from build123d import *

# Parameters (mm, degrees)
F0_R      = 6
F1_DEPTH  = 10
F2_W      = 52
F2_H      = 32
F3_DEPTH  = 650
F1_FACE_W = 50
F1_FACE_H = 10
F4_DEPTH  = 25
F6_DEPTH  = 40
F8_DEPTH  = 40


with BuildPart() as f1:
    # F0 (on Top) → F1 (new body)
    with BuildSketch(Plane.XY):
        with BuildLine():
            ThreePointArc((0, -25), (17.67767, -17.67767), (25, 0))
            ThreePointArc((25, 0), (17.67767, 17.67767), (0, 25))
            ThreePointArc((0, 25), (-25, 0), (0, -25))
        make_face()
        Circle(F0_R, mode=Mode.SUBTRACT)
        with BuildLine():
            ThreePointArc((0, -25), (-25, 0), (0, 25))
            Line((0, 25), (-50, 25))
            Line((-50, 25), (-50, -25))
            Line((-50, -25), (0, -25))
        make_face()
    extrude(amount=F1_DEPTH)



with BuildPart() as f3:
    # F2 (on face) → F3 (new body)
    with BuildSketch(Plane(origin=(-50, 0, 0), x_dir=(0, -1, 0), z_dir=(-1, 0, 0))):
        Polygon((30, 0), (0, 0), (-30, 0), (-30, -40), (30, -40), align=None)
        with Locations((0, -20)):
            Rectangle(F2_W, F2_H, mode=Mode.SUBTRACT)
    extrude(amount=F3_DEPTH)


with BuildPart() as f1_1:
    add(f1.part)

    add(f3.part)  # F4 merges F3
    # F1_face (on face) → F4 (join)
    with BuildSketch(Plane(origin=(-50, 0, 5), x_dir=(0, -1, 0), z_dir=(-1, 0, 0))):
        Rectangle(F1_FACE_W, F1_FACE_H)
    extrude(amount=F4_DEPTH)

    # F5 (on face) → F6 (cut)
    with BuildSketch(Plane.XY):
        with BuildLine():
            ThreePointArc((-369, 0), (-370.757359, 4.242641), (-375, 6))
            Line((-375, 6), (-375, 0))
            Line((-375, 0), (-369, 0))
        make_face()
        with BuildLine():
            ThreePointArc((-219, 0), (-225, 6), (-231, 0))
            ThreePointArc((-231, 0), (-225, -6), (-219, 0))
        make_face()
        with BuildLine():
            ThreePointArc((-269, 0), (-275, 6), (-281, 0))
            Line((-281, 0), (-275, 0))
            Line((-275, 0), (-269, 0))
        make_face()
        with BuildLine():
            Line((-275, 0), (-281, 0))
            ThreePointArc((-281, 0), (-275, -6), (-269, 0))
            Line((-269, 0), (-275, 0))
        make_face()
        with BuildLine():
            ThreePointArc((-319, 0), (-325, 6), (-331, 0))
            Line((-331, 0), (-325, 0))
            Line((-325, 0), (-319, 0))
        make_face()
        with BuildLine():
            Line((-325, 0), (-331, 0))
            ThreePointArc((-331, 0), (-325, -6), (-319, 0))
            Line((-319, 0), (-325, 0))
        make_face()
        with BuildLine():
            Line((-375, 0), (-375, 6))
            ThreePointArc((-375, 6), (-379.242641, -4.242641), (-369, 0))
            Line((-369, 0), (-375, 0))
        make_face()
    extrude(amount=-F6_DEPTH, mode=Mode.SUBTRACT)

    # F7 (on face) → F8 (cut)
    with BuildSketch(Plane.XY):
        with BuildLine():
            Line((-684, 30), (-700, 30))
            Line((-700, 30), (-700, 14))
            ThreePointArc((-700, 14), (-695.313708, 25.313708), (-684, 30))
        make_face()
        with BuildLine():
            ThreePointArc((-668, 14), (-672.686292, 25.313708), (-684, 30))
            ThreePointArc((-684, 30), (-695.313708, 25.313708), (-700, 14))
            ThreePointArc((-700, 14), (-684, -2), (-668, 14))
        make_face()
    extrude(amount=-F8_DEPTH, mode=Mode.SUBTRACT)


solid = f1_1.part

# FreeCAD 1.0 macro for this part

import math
import FreeCAD as App
import Part
import Sketcher

V = App.Vector
Q = App.Units.Quantity


def add_polygon(sketch, points):
    """Adds a closed chain of lines whose ends are joined by coincident constraints."""
    first, n = sketch.GeometryCount, len(points)
    for a, b in zip(points, points[1:] + points[:1]):
        sketch.addGeometry(Part.LineSegment(App.Vector(*a, 0), App.Vector(*b, 0)), False)
    for i in range(n):
        sketch.addConstraint(Sketcher.Constraint("Coincident", first + i, 2, first + (i + 1) % n, 1))

doc = App.newDocument("Part")
body = doc.addObject("PartDesign::Body", "Body")

# Sketch on XY plane
sketch1 = doc.addObject("Sketcher::SketchObject", "Sketch")
body.addObject(sketch1)
sketch1.AttachmentSupport = (doc.XY_Plane, [""])
sketch1.MapMode = "FlatFace"
sketch1.addGeometry([
    Part.ArcOfCircle(Part.Circle(V(0, 0, 0), V(0, 0, 1), 25), math.radians(-90), math.radians(0)),  # 0
    Part.ArcOfCircle(Part.Circle(V(0, 0, 0), V(0, 0, 1), 25), math.radians(0), math.radians(90)),  # 1
    Part.LineSegment(V(0, 25, 0), V(-50, 25, 0)),  # 2
    Part.LineSegment(V(-50, 25, 0), V(-50, -25, 0)),  # 3
    Part.LineSegment(V(-50, -25, 0), V(0, -25, 0)),  # 4
    Part.Circle(V(0, 0, 0), V(0, 0, 1), 6),  # 5
], False)
sketch1.addConstraint([
    Sketcher.Constraint("Tangent", 0, 2, 1, 1),
    Sketcher.Constraint("Tangent", 1, 2, 2, 1),
    Sketcher.Constraint("Coincident", 2, 2, 3, 1),
    Sketcher.Constraint("Coincident", 3, 2, 4, 1),
    Sketcher.Constraint("Tangent", 4, 2, 0, 1),
    Sketcher.Constraint("Horizontal", 2),
    Sketcher.Constraint("Vertical", 3),
    Sketcher.Constraint("Horizontal", 4),
    Sketcher.Constraint("Coincident", 0, 3, -1, 1),
    Sketcher.Constraint("Coincident", 5, 3, -1, 1),
    Sketcher.Constraint("Equal", 0, 1),
    Sketcher.Constraint("PointOnObject", 0, 2, -1),
    Sketcher.Constraint("Equal", 4, 3),
    Sketcher.Constraint("Diameter", 5, Q("12 mm")),
    Sketcher.Constraint("Radius", 0, Q("24.999998 mm")),
])
pad1 = doc.addObject("PartDesign::Pad", "Pad")
body.addObject(pad1)
pad1.Profile = sketch1
pad1.Length = 10
body2 = doc.addObject("PartDesign::Body", "Body001")

# Sketch on YZ plane
sketch2 = doc.addObject("Sketcher::SketchObject", "Sketch001")
body2.addObject(sketch2)
sketch2.AttachmentSupport = (doc.getObject("YZ_Plane001"), [""])
sketch2.MapMode = "FlatFace"
sketch2.AttachmentOffset = App.Placement(V(0, 0, -50), App.Rotation())
add_polygon(sketch2, [(-30, 0), (30, 0), (30, -40), (-30, -40)])  # lines 0-3
add_polygon(sketch2, [(-26, -36), (26, -36), (26, -4), (-26, -4)])  # lines 4-7
sketch2.addConstraint([
    Sketcher.Constraint("Horizontal", 0),
    Sketcher.Constraint("Vertical", 1),
    Sketcher.Constraint("Horizontal", 2),
    Sketcher.Constraint("Vertical", 3),
    Sketcher.Constraint("Horizontal", 4),
    Sketcher.Constraint("Vertical", 5),
    Sketcher.Constraint("Horizontal", 6),
    Sketcher.Constraint("Vertical", 7),
    Sketcher.Constraint("Symmetric", 0, 2, 3, 2, -1, 1),
    Sketcher.Constraint("DistanceX", 0, 1, 0, 2, Q("60 mm")),
    Sketcher.Constraint("DistanceX", 4, 1, 4, 2, Q("52 mm")),
    Sketcher.Constraint("DistanceY", 1, 2, 1, 1, Q("40 mm")),
    Sketcher.Constraint("DistanceY", 5, 1, 5, 2, Q("32 mm")),
    Sketcher.Constraint("DistanceX", -1, 1, 4, 2, Q("26 mm")),
    Sketcher.Constraint("DistanceY", 4, 2, -1, 1, Q("36 mm")),
])
pad2 = doc.addObject("PartDesign::Pad", "Pad001")
body2.addObject(pad2)
pad2.Profile = sketch2
pad2.Length = 650
pad2.Reversed = True
body.AllowCompound = True
doc.recompute()

boolean = doc.addObject("PartDesign::Boolean", "Boolean")
body.addObject(boolean)
boolean.Type = "Fuse"
boolean.addObjects([body2])

# Sketch on YZ plane
sketch3 = doc.addObject("Sketcher::SketchObject", "Sketch002")
body.addObject(sketch3)
sketch3.AttachmentSupport = (doc.YZ_Plane, [""])
sketch3.MapMode = "FlatFace"
sketch3.AttachmentOffset = App.Placement(V(0, 0, -50), App.Rotation())
add_polygon(sketch3, [(25, 10), (25, 0), (-25, 0), (-25, 10)])  # lines 0-3
sketch3.addConstraint([
    Sketcher.Constraint("Vertical", 0),
    Sketcher.Constraint("Horizontal", 1),
    Sketcher.Constraint("Vertical", 2),
    Sketcher.Constraint("Horizontal", 3),
    Sketcher.Constraint("Symmetric", 0, 2, 1, 2, -1, 1),
    Sketcher.Constraint("DistanceX", 1, 2, 1, 1, Q("50 mm")),
    Sketcher.Constraint("DistanceY", 0, 2, 0, 1, Q("10 mm")),
])
pad3 = doc.addObject("PartDesign::Pad", "Pad002")
body.addObject(pad3)
pad3.Profile = sketch3
pad3.Length = 25
pad3.Reversed = True

# Sketch on XY plane
sketch4 = doc.addObject("Sketcher::SketchObject", "Sketch003")
body.addObject(sketch4)
sketch4.AttachmentSupport = (doc.XY_Plane, [""])
sketch4.MapMode = "FlatFace"
sketch4.addGeometry([
    Part.ArcOfCircle(Part.Circle(V(-375, 0, 0), V(0, 0, 1), 6), math.radians(0), math.radians(90)),  # 0
    Part.ArcOfCircle(Part.Circle(V(-375, 0, 0), V(0, 0, 1), 6), math.radians(90), math.radians(360)),  # 1
    Part.Circle(V(-225, 0, 0), V(0, 0, 1), 6),  # 2
    Part.Circle(V(-275, 0, 0), V(0, 0, 1), 6),  # 3
    Part.Circle(V(-325, 0, 0), V(0, 0, 1), 6),  # 4
], False)
sketch4.addConstraint([
    Sketcher.Constraint("Tangent", 0, 1, 1, 2),
    Sketcher.Constraint("Coincident", 1, 1, 0, 2),
    Sketcher.Constraint("Equal", 1, 2),
    Sketcher.Constraint("Equal", 2, 3),
    Sketcher.Constraint("Equal", 3, 4),
    Sketcher.Constraint("PointOnObject", 0, 3, -1),
    Sketcher.Constraint("PointOnObject", 2, 3, -1),
    Sketcher.Constraint("PointOnObject", 3, 3, -1),
    Sketcher.Constraint("PointOnObject", 4, 3, -1),
    Sketcher.Constraint("PointOnObject", 0, 1, -1),
    Sketcher.Constraint("Vertical", 0, 3, 1, 1),
    Sketcher.Constraint("Diameter", 2, Q("12 mm")),
    Sketcher.Constraint("DistanceX", 0, 3, -1, 1, Q("374.999999 mm")),
    Sketcher.Constraint("DistanceX", 2, 3, -1, 1, Q("225 mm")),
    Sketcher.Constraint("DistanceX", 3, 3, -1, 1, Q("275 mm")),
    Sketcher.Constraint("DistanceX", 4, 3, -1, 1, Q("325 mm")),
])
pocket1 = doc.addObject("PartDesign::Pocket", "Pocket")
body.addObject(pocket1)
pocket1.Profile = sketch4
pocket1.Length = 40

# Sketch on XY plane
sketch5 = doc.addObject("Sketcher::SketchObject", "Sketch004")
body.addObject(sketch5)
sketch5.AttachmentSupport = (doc.XY_Plane, [""])
sketch5.MapMode = "FlatFace"
sketch5.addGeometry([
    Part.LineSegment(V(-684, 30, 0), V(-700, 30, 0)),
    Part.LineSegment(V(-700, 30, 0), V(-700, 14, 0)),
    Part.ArcOfCircle(Part.Circle(V(-684, 14, 0), V(0, 0, 1), 16), math.radians(180), math.radians(360)),
    Part.ArcOfCircle(Part.Circle(V(-684, 14, 0), V(0, 0, 1), 16), math.radians(0), math.radians(90)),
], False)
sketch5.addConstraint([
    Sketcher.Constraint("Coincident", 0, 2, 1, 1),
    Sketcher.Constraint("Tangent", 1, 2, 2, 1),
    Sketcher.Constraint("Tangent", 2, 2, 3, 1),
    Sketcher.Constraint("Tangent", 3, 2, 0, 1),
    Sketcher.Constraint("Horizontal", 0),
    Sketcher.Constraint("Vertical", 1),
    Sketcher.Constraint("Equal", 2, 3),
    Sketcher.Constraint("Horizontal", 1, 2, 2, 2),
    Sketcher.Constraint("Radius", 2, Q("16 mm")),
    Sketcher.Constraint("DistanceX", 2, 3, -1, 1, Q("684 mm")),
    Sketcher.Constraint("DistanceY", -1, 1, 2, 3, Q("14 mm")),
])
pocket2 = doc.addObject("PartDesign::Pocket", "Pocket001")
body.addObject(pocket2)
pocket2.Profile = sketch5
pocket2.Length = 40

doc.recompute()
